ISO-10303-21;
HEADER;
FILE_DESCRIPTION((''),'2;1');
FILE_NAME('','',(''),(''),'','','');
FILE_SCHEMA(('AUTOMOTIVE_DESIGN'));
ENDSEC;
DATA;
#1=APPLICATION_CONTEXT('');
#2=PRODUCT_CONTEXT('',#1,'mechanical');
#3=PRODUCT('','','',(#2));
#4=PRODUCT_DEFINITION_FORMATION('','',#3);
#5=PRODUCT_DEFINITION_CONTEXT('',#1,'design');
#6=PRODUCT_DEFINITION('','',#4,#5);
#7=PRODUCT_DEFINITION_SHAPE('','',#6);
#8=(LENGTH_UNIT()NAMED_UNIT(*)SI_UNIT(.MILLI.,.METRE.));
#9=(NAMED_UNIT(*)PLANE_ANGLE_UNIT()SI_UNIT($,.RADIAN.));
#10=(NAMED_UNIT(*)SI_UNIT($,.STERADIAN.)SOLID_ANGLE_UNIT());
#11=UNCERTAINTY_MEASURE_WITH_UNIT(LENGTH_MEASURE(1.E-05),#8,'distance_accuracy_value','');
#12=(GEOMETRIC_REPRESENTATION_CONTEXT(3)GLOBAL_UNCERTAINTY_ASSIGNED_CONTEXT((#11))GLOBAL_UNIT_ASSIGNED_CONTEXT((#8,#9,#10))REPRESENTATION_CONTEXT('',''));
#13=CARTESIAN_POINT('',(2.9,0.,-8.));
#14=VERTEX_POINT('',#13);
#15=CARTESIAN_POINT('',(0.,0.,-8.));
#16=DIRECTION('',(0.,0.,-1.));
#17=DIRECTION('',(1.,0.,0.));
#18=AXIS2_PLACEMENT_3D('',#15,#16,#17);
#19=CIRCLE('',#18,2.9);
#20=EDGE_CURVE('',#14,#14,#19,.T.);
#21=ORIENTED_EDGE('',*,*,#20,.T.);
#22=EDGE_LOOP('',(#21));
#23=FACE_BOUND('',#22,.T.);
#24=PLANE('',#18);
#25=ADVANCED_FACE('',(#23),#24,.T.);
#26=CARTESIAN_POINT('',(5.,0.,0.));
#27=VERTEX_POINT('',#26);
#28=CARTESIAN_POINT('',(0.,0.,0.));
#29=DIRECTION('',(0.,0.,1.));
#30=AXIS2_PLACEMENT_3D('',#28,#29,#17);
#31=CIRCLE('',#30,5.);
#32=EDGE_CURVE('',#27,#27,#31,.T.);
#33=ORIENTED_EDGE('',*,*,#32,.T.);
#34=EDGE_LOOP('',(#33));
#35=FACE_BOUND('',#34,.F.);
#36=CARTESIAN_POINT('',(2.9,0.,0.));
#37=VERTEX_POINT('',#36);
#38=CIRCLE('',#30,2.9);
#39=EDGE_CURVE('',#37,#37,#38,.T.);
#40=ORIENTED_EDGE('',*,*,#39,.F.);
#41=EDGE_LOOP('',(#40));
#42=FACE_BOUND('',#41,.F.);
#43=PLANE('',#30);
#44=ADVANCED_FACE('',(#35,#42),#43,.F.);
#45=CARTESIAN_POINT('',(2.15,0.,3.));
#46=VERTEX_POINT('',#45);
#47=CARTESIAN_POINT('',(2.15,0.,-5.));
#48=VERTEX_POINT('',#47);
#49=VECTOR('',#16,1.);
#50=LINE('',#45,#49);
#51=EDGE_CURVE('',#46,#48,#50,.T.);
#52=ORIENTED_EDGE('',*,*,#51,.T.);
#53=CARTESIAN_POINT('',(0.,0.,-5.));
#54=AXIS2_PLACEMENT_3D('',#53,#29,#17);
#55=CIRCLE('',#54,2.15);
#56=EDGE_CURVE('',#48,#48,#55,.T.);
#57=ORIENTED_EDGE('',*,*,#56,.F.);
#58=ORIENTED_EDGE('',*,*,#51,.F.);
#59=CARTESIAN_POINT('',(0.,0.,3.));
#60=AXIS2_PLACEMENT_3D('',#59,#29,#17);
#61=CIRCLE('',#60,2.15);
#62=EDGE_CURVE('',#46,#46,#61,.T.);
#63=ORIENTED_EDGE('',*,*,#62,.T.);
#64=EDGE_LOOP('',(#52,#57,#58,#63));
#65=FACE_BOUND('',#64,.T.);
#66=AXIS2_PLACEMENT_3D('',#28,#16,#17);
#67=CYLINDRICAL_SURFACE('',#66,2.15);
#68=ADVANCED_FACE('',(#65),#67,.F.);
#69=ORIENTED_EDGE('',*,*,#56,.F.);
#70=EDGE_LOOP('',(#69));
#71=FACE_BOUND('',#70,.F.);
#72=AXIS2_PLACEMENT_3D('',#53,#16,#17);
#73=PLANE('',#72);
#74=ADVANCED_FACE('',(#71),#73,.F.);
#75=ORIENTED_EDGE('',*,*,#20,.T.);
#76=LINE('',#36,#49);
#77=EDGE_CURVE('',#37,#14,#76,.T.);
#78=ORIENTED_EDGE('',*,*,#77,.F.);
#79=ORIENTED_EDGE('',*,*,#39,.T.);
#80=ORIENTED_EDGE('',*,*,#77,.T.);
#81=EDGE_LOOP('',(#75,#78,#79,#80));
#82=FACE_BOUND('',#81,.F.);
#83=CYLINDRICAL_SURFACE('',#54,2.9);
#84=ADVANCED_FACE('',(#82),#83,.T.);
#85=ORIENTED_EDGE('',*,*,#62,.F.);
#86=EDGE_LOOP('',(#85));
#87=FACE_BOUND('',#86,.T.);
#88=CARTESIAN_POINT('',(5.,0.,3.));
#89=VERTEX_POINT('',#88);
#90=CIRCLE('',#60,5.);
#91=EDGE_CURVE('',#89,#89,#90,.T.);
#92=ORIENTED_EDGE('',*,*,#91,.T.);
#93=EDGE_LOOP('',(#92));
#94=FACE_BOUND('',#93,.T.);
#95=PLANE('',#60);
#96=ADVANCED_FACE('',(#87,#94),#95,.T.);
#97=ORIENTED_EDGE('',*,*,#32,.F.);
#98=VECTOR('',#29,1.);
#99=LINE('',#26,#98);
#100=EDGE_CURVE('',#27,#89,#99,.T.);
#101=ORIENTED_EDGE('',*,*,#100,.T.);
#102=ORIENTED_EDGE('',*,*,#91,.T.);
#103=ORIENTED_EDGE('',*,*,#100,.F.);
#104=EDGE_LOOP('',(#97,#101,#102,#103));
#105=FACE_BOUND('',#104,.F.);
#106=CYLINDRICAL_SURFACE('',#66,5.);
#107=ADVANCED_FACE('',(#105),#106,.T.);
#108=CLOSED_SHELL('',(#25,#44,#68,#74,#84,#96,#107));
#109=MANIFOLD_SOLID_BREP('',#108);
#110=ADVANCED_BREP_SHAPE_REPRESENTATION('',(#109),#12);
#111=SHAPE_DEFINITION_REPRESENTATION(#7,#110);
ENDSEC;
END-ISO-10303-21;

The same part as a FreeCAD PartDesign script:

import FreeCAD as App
import Part
import Sketcher
from FreeCAD import Vector
Q = App.Units.Quantity

doc = App.newDocument("Part")
body = doc.addObject("PartDesign::Body", "Body")

sketch1 = body.newObject("Sketcher::SketchObject", "Sketch")
sketch1.AttachmentSupport = (doc.getObject("XY_Plane"), [""])
sketch1.MapMode = "FlatFace"
sketch1.addGeometry([
    Part.Circle(Vector(0, 0, 0), Vector(0, 0, 1), 5),
    Part.Circle(Vector(0, 0, 0), Vector(0, 0, 1), 2.15),
], False)
sketch1.addConstraint([
    Sketcher.Constraint("Coincident", 0, 3, -1, 1),
    Sketcher.Constraint("Coincident", 1, 3, -1, 1),
    Sketcher.Constraint("Diameter", 0, Q("10 mm")),
    Sketcher.Constraint("Diameter", 1, Q("4.3 mm")),
])
pad1 = body.newObject("PartDesign::Pad", "Pad")
pad1.Profile = sketch1
pad1.Length = 3

sketch2 = body.newObject("Sketcher::SketchObject", "Sketch001")
sketch2.AttachmentSupport = (doc.getObject("XY_Plane"), [""])
sketch2.MapMode = "FlatFace"
sketch2.addGeometry([
    Part.Circle(Vector(0, 0, 0), Vector(0, 0, 1), 2.9),
    Part.Circle(Vector(0, 0, 0), Vector(0, 0, 1), 2.15),
], False)
sketch2.addConstraint([
    Sketcher.Constraint("Coincident", 0, 3, -1, 1),
    Sketcher.Constraint("Coincident", 1, 3, -1, 1),
    Sketcher.Constraint("Diameter", 0, Q("5.8 mm")),
    Sketcher.Constraint("Diameter", 1, Q("4.3 mm")),
])
pad2 = body.newObject("PartDesign::Pad", "Pad001")
pad2.Profile = sketch2
pad2.Length = 5
pad2.Reversed = True

sketch3 = body.newObject("Sketcher::SketchObject", "Sketch002")
sketch3.AttachmentSupport = (doc.getObject("XY_Plane"), [""])
sketch3.MapMode = "FlatFace"
sketch3.AttachmentOffset = App.Placement(Vector(0, 0, -5), App.Rotation())
sketch3.addGeometry(Part.Circle(Vector(0, 0, 0), Vector(0, 0, 1), 2.9), False)
sketch3.addConstraint([
    Sketcher.Constraint("Coincident", 0, 3, -1, 1),
    Sketcher.Constraint("Diameter", 0, Q("5.8 mm")),
])
pad3 = body.newObject("PartDesign::Pad", "Pad002")
pad3.Profile = sketch3
pad3.Length = 3
pad3.Reversed = True

doc.recompute()
